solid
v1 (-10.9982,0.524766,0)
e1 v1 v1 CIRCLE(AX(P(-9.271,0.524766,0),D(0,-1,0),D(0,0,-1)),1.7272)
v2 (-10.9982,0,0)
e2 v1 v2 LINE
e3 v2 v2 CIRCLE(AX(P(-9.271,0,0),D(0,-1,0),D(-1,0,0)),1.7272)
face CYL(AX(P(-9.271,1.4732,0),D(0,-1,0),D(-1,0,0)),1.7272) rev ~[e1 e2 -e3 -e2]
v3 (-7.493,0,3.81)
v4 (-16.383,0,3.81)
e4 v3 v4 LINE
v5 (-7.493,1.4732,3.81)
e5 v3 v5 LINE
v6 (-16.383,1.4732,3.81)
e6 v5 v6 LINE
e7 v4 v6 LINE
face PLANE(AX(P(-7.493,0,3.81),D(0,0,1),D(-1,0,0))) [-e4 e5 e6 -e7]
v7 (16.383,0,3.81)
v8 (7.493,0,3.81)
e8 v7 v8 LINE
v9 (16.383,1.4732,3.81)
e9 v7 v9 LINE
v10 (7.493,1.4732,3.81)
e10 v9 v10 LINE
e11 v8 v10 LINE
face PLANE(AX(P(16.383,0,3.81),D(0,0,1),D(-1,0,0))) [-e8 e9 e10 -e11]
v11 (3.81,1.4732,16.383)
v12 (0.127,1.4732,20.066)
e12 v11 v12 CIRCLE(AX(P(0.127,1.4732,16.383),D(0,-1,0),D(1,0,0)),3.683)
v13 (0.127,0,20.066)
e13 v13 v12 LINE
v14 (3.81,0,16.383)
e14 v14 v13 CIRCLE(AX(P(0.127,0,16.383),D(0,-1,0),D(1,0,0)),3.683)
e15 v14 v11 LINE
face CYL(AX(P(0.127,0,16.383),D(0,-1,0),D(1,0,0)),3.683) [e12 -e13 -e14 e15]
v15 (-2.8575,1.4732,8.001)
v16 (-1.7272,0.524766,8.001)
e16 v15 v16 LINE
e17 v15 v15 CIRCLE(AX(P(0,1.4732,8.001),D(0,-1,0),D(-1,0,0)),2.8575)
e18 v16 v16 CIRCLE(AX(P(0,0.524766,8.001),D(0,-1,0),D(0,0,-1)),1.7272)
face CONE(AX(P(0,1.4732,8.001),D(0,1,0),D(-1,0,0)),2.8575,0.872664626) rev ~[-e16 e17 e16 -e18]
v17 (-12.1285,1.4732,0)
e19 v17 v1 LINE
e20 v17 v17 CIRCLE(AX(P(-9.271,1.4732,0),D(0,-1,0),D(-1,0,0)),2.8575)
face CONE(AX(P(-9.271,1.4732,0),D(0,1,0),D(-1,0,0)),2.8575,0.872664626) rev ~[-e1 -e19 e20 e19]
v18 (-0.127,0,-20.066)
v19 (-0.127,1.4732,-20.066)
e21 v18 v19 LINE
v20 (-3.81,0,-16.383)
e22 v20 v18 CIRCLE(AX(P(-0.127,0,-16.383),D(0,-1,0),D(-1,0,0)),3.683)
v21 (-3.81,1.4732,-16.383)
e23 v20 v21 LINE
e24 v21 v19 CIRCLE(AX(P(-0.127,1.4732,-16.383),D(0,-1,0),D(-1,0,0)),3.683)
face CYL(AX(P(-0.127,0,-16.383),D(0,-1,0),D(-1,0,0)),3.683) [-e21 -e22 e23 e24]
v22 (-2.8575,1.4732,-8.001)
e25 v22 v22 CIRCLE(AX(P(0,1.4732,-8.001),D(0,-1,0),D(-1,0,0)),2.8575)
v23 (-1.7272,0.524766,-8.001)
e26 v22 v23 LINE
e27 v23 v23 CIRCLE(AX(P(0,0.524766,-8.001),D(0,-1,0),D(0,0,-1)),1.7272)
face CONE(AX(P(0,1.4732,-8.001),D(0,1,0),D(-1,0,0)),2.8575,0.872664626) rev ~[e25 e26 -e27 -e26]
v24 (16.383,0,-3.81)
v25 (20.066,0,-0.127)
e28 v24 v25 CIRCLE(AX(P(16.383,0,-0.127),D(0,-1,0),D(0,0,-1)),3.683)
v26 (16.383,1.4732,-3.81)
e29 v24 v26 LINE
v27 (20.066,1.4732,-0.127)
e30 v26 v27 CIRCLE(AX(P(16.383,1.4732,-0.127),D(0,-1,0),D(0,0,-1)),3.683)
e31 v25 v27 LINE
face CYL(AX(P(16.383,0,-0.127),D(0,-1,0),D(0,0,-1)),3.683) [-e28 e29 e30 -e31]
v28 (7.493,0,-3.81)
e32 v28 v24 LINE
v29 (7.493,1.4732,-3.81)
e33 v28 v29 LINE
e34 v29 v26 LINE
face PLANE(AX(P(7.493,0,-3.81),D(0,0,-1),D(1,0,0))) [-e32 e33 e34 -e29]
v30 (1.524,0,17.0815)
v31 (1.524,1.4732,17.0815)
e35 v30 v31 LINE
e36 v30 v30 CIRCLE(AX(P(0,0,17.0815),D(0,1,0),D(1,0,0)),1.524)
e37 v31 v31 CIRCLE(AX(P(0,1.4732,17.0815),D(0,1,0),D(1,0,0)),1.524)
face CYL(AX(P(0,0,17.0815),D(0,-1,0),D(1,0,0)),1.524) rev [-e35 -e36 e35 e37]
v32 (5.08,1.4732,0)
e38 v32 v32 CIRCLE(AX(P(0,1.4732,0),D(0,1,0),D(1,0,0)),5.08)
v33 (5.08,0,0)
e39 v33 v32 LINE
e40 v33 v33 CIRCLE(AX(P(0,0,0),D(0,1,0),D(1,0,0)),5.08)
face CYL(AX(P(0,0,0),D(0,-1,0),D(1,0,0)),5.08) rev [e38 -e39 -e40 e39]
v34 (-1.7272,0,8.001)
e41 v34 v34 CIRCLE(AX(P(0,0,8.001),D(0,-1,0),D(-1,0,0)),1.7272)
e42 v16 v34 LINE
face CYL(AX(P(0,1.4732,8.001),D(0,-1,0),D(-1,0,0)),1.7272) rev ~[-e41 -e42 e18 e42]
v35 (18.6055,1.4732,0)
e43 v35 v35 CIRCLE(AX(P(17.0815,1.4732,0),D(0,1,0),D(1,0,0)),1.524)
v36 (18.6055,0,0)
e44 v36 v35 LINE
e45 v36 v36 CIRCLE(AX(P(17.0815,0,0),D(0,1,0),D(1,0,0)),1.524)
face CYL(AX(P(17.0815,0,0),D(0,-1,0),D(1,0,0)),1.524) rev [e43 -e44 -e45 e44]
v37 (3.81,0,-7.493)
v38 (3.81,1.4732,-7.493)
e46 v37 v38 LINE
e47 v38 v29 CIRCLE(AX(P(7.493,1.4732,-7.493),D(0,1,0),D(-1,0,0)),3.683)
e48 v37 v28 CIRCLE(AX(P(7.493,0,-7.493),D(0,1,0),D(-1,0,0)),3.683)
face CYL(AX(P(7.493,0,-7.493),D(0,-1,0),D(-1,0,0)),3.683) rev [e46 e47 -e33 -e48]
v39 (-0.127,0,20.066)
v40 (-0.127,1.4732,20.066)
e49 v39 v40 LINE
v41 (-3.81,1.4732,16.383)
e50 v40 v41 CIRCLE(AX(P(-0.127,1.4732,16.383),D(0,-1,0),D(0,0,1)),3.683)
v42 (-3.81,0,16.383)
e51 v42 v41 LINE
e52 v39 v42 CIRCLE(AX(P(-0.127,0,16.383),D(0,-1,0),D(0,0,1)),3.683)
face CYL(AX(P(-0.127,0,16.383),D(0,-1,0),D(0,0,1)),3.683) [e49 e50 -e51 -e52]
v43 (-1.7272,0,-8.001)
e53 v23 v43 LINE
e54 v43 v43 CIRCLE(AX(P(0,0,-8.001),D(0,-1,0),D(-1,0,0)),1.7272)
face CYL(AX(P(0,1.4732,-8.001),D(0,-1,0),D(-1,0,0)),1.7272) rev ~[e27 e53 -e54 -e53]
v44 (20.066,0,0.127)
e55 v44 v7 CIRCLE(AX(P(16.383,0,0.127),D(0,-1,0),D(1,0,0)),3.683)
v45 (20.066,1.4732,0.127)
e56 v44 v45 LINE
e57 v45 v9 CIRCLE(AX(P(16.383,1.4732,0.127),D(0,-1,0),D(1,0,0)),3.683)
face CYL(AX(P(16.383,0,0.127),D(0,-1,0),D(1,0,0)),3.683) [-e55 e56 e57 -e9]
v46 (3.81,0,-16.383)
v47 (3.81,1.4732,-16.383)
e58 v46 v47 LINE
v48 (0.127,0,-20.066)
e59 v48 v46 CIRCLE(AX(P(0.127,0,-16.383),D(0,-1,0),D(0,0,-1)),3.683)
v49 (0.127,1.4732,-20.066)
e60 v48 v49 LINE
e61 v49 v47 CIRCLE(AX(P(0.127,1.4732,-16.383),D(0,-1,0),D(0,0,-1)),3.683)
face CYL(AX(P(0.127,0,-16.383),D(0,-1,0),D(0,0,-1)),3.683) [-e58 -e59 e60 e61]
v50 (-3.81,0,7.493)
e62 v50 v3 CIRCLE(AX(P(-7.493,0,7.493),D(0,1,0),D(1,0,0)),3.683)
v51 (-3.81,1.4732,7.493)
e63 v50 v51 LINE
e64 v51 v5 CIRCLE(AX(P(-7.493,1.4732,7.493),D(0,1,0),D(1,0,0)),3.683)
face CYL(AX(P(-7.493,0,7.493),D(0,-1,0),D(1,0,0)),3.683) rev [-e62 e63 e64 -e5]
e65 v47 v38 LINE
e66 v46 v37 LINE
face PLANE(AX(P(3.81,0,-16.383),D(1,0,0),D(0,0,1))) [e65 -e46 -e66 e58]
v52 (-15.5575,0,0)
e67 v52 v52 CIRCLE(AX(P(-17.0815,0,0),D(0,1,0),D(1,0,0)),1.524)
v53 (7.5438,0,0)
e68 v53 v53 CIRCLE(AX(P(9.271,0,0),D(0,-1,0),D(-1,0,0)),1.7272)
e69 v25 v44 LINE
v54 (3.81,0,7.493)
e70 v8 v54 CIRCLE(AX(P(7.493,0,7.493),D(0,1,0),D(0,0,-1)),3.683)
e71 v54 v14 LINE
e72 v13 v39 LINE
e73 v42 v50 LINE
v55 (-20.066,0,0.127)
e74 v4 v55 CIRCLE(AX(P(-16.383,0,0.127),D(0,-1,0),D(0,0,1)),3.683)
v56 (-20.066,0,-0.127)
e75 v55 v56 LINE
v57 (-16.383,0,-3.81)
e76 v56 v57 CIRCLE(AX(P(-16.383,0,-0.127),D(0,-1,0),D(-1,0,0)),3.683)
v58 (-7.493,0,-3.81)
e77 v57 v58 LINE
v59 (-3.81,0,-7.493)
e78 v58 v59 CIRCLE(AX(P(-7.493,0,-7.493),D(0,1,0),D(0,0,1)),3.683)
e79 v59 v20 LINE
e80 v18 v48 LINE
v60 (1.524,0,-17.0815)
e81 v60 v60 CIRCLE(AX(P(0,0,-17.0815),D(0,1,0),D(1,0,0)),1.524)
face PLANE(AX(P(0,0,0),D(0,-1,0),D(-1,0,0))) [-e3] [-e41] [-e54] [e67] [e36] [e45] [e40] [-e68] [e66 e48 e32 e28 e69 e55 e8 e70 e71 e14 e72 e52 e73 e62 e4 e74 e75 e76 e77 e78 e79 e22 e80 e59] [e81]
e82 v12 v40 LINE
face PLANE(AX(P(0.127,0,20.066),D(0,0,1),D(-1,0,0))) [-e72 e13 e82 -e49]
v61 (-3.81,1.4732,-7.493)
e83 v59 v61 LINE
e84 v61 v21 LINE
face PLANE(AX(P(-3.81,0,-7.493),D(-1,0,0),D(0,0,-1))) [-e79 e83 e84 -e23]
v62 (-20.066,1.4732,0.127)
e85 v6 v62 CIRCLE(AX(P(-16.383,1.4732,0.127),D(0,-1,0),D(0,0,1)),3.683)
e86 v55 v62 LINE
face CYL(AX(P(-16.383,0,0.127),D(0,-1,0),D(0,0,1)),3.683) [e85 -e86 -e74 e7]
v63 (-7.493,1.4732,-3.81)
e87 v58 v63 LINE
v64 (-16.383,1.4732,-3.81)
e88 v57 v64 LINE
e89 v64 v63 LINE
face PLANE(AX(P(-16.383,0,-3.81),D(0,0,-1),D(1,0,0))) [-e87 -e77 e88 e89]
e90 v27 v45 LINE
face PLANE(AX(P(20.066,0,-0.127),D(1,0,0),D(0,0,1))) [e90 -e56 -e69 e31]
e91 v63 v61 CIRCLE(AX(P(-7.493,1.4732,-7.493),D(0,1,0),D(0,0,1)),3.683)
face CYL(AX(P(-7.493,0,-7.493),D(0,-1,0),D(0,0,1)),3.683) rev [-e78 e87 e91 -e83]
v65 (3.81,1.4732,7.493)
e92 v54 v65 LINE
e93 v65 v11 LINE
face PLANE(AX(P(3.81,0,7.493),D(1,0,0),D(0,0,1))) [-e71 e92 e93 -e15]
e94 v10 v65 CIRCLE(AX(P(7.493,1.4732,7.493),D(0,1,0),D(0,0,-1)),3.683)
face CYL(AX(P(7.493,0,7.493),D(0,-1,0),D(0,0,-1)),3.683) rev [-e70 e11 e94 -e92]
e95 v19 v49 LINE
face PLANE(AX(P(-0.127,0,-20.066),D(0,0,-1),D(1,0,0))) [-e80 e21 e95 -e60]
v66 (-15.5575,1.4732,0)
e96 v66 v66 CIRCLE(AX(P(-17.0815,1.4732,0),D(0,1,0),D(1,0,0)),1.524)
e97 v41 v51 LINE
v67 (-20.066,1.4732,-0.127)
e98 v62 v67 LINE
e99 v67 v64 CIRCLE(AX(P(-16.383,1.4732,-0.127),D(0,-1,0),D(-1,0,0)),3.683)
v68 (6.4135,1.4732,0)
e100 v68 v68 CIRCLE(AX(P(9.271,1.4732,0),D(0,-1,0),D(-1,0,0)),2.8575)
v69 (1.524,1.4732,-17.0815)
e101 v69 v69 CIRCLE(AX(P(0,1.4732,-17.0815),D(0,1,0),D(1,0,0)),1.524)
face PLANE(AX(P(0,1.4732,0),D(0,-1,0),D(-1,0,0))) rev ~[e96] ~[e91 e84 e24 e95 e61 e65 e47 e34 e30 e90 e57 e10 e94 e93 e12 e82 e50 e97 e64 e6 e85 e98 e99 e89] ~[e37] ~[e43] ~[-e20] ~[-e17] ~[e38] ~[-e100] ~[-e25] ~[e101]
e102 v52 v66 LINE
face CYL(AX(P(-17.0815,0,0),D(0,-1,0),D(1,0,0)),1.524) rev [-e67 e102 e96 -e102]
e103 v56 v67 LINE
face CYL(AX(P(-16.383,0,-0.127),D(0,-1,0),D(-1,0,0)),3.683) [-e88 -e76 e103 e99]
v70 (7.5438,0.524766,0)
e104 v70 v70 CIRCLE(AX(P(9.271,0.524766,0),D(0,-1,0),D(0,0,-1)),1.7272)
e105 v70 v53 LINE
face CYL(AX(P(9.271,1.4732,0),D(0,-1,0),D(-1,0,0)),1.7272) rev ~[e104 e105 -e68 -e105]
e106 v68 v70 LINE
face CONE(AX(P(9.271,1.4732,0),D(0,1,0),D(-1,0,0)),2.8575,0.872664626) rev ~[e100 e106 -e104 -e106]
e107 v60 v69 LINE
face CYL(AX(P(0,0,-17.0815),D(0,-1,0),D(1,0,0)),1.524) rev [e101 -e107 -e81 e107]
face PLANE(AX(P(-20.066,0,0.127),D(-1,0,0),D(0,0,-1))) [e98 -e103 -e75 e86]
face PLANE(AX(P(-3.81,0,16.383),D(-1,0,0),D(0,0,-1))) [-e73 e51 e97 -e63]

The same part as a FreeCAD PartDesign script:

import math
import FreeCAD as App
import Part
import Sketcher

V = App.Vector
Q = App.Units.Quantity

doc = App.newDocument("Part")
body = doc.addObject("PartDesign::Body", "Body")

# Sketch on XZ plane
sketch1 = body.newObject("Sketcher::SketchObject", "Sketch")
sketch1.AttachmentSupport = (doc.getObject("XZ_Plane"), [""])
sketch1.MapMode = "FlatFace"
sketch1.addGeometry(Part.LineSegment(V(-3.81, -16.38, 0), V(-3.81, -7.49, 0)), False)
sketch1.addGeometry(Part.ArcOfCircle(Part.Circle(V(-7.49, -7.49, 0), V(0, 0, 1), 3.68), math.radians(0), math.radians(90)), False)
sketch1.addGeometry(Part.LineSegment(V(-7.49, -3.81, 0), V(-16.38, -3.81, 0)), False)
sketch1.addGeometry(Part.ArcOfCircle(Part.Circle(V(-16.38, -0.13, 0), V(0, 0, 1), 3.68), math.radians(180), math.radians(270)), False)
sketch1.addGeometry(Part.LineSegment(V(-20.07, -0.13, 0), V(-20.07, 0.13, 0)), False)
sketch1.addGeometry(Part.ArcOfCircle(Part.Circle(V(-16.38, 0.13, 0), V(0, 0, 1), 3.68), math.radians(90), math.radians(180)), False)
sketch1.addGeometry(Part.LineSegment(V(-16.38, 3.81, 0), V(-7.49, 3.81, 0)), False)
sketch1.addGeometry(Part.ArcOfCircle(Part.Circle(V(-7.49, 7.49, 0), V(0, 0, 1), 3.68), math.radians(-90), math.radians(0)), False)
sketch1.addGeometry(Part.LineSegment(V(-3.81, 7.49, 0), V(-3.81, 16.38, 0)), False)
sketch1.addGeometry(Part.ArcOfCircle(Part.Circle(V(-0.13, 16.38, 0), V(0, 0, 1), 3.68), math.radians(90), math.radians(180)), False)
sketch1.addGeometry(Part.LineSegment(V(-0.13, 20.07, 0), V(0.13, 20.07, 0)), False)
sketch1.addGeometry(Part.ArcOfCircle(Part.Circle(V(0.13, 16.38, 0), V(0, 0, 1), 3.68), math.radians(0), math.radians(90)), False)
sketch1.addGeometry(Part.LineSegment(V(3.81, 16.38, 0), V(3.81, 7.49, 0)), False)
sketch1.addGeometry(Part.ArcOfCircle(Part.Circle(V(7.49, 7.49, 0), V(0, 0, 1), 3.68), math.radians(180), math.radians(270)), False)
sketch1.addGeometry(Part.LineSegment(V(7.49, 3.81, 0), V(16.38, 3.81, 0)), False)
sketch1.addGeometry(Part.ArcOfCircle(Part.Circle(V(16.38, 0.13, 0), V(0, 0, 1), 3.68), math.radians(0), math.radians(90)), False)
sketch1.addGeometry(Part.LineSegment(V(20.07, 0.13, 0), V(20.07, -0.13, 0)), False)
sketch1.addGeometry(Part.ArcOfCircle(Part.Circle(V(16.38, -0.13, 0), V(0, 0, 1), 3.68), math.radians(-90), math.radians(0)), False)
sketch1.addGeometry(Part.LineSegment(V(16.38, -3.81, 0), V(7.49, -3.81, 0)), False)
sketch1.addGeometry(Part.ArcOfCircle(Part.Circle(V(7.49, -7.49, 0), V(0, 0, 1), 3.68), math.radians(90), math.radians(180)), False)
sketch1.addGeometry(Part.LineSegment(V(3.81, -7.49, 0), V(3.81, -16.38, 0)), False)
sketch1.addGeometry(Part.ArcOfCircle(Part.Circle(V(0.13, -16.38, 0), V(0, 0, 1), 3.68), math.radians(-90), math.radians(0)), False)
sketch1.addGeometry(Part.LineSegment(V(0.13, -20.07, 0), V(-0.13, -20.07, 0)), False)
sketch1.addGeometry(Part.ArcOfCircle(Part.Circle(V(-0.13, -16.38, 0), V(0, 0, 1), 3.68), math.radians(180), math.radians(270)), False)
sketch1.addGeometry(Part.Circle(V(0, 17.08, 0), V(0, 0, 1), 1.52), False)
sketch1.addGeometry(Part.Circle(V(17.08, 0, 0), V(0, 0, 1), 1.52), False)
sketch1.addGeometry(Part.Circle(V(0, 0, 0), V(0, 0, 1), 5.08), False)
sketch1.addGeometry(Part.Circle(V(-17.08, 0, 0), V(0, 0, 1), 1.52), False)
sketch1.addGeometry(Part.Circle(V(0, -17.08, 0), V(0, 0, 1), 1.52), False)
sketch1.addConstraint(Sketcher.Constraint("Tangent", 0, 2, 1, 1))
sketch1.addConstraint(Sketcher.Constraint("Tangent", 1, 2, 2, 1))
sketch1.addConstraint(Sketcher.Constraint("Tangent", 2, 2, 3, 2))
sketch1.addConstraint(Sketcher.Constraint("Tangent", 3, 1, 4, 1))
sketch1.addConstraint(Sketcher.Constraint("Tangent", 4, 2, 5, 2))
sketch1.addConstraint(Sketcher.Constraint("Tangent", 5, 1, 6, 1))
sketch1.addConstraint(Sketcher.Constraint("Tangent", 6, 2, 7, 1))
sketch1.addConstraint(Sketcher.Constraint("Tangent", 7, 2, 8, 1))
sketch1.addConstraint(Sketcher.Constraint("Tangent", 8, 2, 9, 2))
sketch1.addConstraint(Sketcher.Constraint("Tangent", 9, 1, 10, 1))
sketch1.addConstraint(Sketcher.Constraint("Tangent", 10, 2, 11, 2))
sketch1.addConstraint(Sketcher.Constraint("Tangent", 11, 1, 12, 1))
sketch1.addConstraint(Sketcher.Constraint("Tangent", 12, 2, 13, 1))
sketch1.addConstraint(Sketcher.Constraint("Tangent", 13, 2, 14, 1))
sketch1.addConstraint(Sketcher.Constraint("Tangent", 14, 2, 15, 2))
sketch1.addConstraint(Sketcher.Constraint("Tangent", 15, 1, 16, 1))
sketch1.addConstraint(Sketcher.Constraint("Tangent", 16, 2, 17, 2))
sketch1.addConstraint(Sketcher.Constraint("Tangent", 17, 1, 18, 1))
sketch1.addConstraint(Sketcher.Constraint("Tangent", 18, 2, 19, 1))
sketch1.addConstraint(Sketcher.Constraint("Tangent", 19, 2, 20, 1))
sketch1.addConstraint(Sketcher.Constraint("Tangent", 20, 2, 21, 2))
sketch1.addConstraint(Sketcher.Constraint("Tangent", 21, 1, 22, 1))
sketch1.addConstraint(Sketcher.Constraint("Tangent", 22, 2, 23, 2))
sketch1.addConstraint(Sketcher.Constraint("Tangent", 23, 1, 0, 1))
sketch1.addConstraint(Sketcher.Constraint("Vertical", 0))
sketch1.addConstraint(Sketcher.Constraint("Horizontal", 2))
sketch1.addConstraint(Sketcher.Constraint("Vertical", 4))
sketch1.addConstraint(Sketcher.Constraint("Horizontal", 6))
sketch1.addConstraint(Sketcher.Constraint("Vertical", 8))
sketch1.addConstraint(Sketcher.Constraint("Horizontal", 10))
sketch1.addConstraint(Sketcher.Constraint("Vertical", 12))
sketch1.addConstraint(Sketcher.Constraint("Horizontal", 14))
sketch1.addConstraint(Sketcher.Constraint("Vertical", 16))
sketch1.addConstraint(Sketcher.Constraint("Horizontal", 18))
sketch1.addConstraint(Sketcher.Constraint("Vertical", 20))
sketch1.addConstraint(Sketcher.Constraint("Horizontal", 22))
sketch1.addConstraint(Sketcher.Constraint("Coincident", 26, 3, -1, 1))
sketch1.addConstraint(Sketcher.Constraint("Equal", 1, 3))
sketch1.addConstraint(Sketcher.Constraint("Equal", 3, 5))
sketch1.addConstraint(Sketcher.Constraint("Equal", 5, 7))
sketch1.addConstraint(Sketcher.Constraint("Equal", 7, 9))
sketch1.addConstraint(Sketcher.Constraint("Equal", 9, 11))
sketch1.addConstraint(Sketcher.Constraint("Equal", 11, 13))
sketch1.addConstraint(Sketcher.Constraint("Equal", 13, 15))
sketch1.addConstraint(Sketcher.Constraint("Equal", 15, 17))
sketch1.addConstraint(Sketcher.Constraint("Equal", 17, 19))
sketch1.addConstraint(Sketcher.Constraint("Equal", 19, 21))
sketch1.addConstraint(Sketcher.Constraint("Equal", 21, 23))
sketch1.addConstraint(Sketcher.Constraint("Equal", 24, 25))
sketch1.addConstraint(Sketcher.Constraint("Equal", 25, 27))
sketch1.addConstraint(Sketcher.Constraint("Equal", 27, 28))
sketch1.addConstraint(Sketcher.Constraint("Symmetric", 1, 3, 13, 3, -1, 1))
sketch1.addConstraint(Sketcher.Constraint("Symmetric", 5, 3, 17, 3, -1, 1))
sketch1.addConstraint(Sketcher.Constraint("Symmetric", 9, 3, 21, 3, -1, 1))
sketch1.addConstraint(Sketcher.Constraint("Symmetric", 25, 3, 27, 3, -1, 1))
sketch1.addConstraint(Sketcher.Constraint("Symmetric", 24, 3, 28, 3, -1, 1))
sketch1.addConstraint(Sketcher.Constraint("Symmetric", 7, 3, 13, 3, -2))
sketch1.addConstraint(Sketcher.Constraint("PointOnObject", 24, 3, -2))
sketch1.addConstraint(Sketcher.Constraint("PointOnObject", 25, 3, -1))
sketch1.addConstraint(Sketcher.Constraint("Equal", 18, 0))
sketch1.addConstraint(Sketcher.Constraint("Equal", 22, 4))
sketch1.addConstraint(Sketcher.Constraint("Diameter", 26, Q("0.4 in")))
sketch1.addConstraint(Sketcher.Constraint("Diameter", 24, Q("0.12 in")))
sketch1.addConstraint(Sketcher.Constraint("Radius", 1, Q("0.145 in")))
sketch1.addConstraint(Sketcher.Constraint("DistanceX", 2, 2, 2, 1, Q("0.35 in")))
sketch1.addConstraint(Sketcher.Constraint("DistanceX", 10, 1, 10, 2, Q("0.01 in")))
sketch1.addConstraint(Sketcher.Constraint("DistanceY", -1, 1, 24, 3, Q("0.6725 in")))
sketch1.addConstraint(Sketcher.Constraint("DistanceX", -1, 1, 25, 3, Q("0.6725 in")))
pad1 = body.newObject("PartDesign::Pad", "Pad")
pad1.Profile = sketch1
pad1.Length = Q("0.058 in")
pad1.Reversed = True

# Sketch on XZ plane
sketch2 = body.newObject("Sketcher::SketchObject", "Sketch001")
sketch2.AttachmentSupport = (doc.getObject("XZ_Plane"), [""])
sketch2.MapMode = "FlatFace"
sketch2.AttachmentOffset = App.Placement(V(0, 0, -0.058 * 25.4), App.Rotation())
sketch2.addGeometry(Part.Circle(V(0, -8, 0), V(0, 0, 1), 1.7), False)
sketch2.addGeometry(Part.Circle(V(0, 8, 0), V(0, 0, 1), 1.7), False)
sketch2.addGeometry(Part.Circle(V(9.3, 0, 0), V(0, 0, 1), 1.7), False)
sketch2.addGeometry(Part.Circle(V(-9.3, 0, 0), V(0, 0, 1), 1.7), False)
sketch2.addConstraint(Sketcher.Constraint("Equal", 0, 1))
sketch2.addConstraint(Sketcher.Constraint("Equal", 1, 2))
sketch2.addConstraint(Sketcher.Constraint("Equal", 2, 3))
sketch2.addConstraint(Sketcher.Constraint("Symmetric", 0, 3, 1, 3, -1, 1))
sketch2.addConstraint(Sketcher.Constraint("Symmetric", 2, 3, 3, 3, -1, 1))
sketch2.addConstraint(Sketcher.Constraint("PointOnObject", 0, 3, -2))
sketch2.addConstraint(Sketcher.Constraint("PointOnObject", 2, 3, -1))
sketch2.addConstraint(Sketcher.Constraint("Diameter", 0, Q("0.136 in")))
sketch2.addConstraint(Sketcher.Constraint("DistanceY", 0, 3, 1, 3, Q("0.63 in")))
sketch2.addConstraint(Sketcher.Constraint("DistanceX", 3, 3, 2, 3, Q("0.73 in")))
doc.recompute()
hole = body.newObject("PartDesign::Hole", "Hole")
hole.Profile = sketch2
hole.ThreadType = "None"
hole.Diameter = Q("0.136 in")
hole.DepthType = "Dimension"
hole.Depth = Q("0.1358 in")
hole.DrillPoint = "Angled"
hole.DrillPointAngle = 118
hole.HoleCutType = "Countersink"
hole.HoleCutDiameter = Q("0.225 in")
hole.HoleCutCountersinkAngle = 100
hole.Reversed = True

doc.recompute()
